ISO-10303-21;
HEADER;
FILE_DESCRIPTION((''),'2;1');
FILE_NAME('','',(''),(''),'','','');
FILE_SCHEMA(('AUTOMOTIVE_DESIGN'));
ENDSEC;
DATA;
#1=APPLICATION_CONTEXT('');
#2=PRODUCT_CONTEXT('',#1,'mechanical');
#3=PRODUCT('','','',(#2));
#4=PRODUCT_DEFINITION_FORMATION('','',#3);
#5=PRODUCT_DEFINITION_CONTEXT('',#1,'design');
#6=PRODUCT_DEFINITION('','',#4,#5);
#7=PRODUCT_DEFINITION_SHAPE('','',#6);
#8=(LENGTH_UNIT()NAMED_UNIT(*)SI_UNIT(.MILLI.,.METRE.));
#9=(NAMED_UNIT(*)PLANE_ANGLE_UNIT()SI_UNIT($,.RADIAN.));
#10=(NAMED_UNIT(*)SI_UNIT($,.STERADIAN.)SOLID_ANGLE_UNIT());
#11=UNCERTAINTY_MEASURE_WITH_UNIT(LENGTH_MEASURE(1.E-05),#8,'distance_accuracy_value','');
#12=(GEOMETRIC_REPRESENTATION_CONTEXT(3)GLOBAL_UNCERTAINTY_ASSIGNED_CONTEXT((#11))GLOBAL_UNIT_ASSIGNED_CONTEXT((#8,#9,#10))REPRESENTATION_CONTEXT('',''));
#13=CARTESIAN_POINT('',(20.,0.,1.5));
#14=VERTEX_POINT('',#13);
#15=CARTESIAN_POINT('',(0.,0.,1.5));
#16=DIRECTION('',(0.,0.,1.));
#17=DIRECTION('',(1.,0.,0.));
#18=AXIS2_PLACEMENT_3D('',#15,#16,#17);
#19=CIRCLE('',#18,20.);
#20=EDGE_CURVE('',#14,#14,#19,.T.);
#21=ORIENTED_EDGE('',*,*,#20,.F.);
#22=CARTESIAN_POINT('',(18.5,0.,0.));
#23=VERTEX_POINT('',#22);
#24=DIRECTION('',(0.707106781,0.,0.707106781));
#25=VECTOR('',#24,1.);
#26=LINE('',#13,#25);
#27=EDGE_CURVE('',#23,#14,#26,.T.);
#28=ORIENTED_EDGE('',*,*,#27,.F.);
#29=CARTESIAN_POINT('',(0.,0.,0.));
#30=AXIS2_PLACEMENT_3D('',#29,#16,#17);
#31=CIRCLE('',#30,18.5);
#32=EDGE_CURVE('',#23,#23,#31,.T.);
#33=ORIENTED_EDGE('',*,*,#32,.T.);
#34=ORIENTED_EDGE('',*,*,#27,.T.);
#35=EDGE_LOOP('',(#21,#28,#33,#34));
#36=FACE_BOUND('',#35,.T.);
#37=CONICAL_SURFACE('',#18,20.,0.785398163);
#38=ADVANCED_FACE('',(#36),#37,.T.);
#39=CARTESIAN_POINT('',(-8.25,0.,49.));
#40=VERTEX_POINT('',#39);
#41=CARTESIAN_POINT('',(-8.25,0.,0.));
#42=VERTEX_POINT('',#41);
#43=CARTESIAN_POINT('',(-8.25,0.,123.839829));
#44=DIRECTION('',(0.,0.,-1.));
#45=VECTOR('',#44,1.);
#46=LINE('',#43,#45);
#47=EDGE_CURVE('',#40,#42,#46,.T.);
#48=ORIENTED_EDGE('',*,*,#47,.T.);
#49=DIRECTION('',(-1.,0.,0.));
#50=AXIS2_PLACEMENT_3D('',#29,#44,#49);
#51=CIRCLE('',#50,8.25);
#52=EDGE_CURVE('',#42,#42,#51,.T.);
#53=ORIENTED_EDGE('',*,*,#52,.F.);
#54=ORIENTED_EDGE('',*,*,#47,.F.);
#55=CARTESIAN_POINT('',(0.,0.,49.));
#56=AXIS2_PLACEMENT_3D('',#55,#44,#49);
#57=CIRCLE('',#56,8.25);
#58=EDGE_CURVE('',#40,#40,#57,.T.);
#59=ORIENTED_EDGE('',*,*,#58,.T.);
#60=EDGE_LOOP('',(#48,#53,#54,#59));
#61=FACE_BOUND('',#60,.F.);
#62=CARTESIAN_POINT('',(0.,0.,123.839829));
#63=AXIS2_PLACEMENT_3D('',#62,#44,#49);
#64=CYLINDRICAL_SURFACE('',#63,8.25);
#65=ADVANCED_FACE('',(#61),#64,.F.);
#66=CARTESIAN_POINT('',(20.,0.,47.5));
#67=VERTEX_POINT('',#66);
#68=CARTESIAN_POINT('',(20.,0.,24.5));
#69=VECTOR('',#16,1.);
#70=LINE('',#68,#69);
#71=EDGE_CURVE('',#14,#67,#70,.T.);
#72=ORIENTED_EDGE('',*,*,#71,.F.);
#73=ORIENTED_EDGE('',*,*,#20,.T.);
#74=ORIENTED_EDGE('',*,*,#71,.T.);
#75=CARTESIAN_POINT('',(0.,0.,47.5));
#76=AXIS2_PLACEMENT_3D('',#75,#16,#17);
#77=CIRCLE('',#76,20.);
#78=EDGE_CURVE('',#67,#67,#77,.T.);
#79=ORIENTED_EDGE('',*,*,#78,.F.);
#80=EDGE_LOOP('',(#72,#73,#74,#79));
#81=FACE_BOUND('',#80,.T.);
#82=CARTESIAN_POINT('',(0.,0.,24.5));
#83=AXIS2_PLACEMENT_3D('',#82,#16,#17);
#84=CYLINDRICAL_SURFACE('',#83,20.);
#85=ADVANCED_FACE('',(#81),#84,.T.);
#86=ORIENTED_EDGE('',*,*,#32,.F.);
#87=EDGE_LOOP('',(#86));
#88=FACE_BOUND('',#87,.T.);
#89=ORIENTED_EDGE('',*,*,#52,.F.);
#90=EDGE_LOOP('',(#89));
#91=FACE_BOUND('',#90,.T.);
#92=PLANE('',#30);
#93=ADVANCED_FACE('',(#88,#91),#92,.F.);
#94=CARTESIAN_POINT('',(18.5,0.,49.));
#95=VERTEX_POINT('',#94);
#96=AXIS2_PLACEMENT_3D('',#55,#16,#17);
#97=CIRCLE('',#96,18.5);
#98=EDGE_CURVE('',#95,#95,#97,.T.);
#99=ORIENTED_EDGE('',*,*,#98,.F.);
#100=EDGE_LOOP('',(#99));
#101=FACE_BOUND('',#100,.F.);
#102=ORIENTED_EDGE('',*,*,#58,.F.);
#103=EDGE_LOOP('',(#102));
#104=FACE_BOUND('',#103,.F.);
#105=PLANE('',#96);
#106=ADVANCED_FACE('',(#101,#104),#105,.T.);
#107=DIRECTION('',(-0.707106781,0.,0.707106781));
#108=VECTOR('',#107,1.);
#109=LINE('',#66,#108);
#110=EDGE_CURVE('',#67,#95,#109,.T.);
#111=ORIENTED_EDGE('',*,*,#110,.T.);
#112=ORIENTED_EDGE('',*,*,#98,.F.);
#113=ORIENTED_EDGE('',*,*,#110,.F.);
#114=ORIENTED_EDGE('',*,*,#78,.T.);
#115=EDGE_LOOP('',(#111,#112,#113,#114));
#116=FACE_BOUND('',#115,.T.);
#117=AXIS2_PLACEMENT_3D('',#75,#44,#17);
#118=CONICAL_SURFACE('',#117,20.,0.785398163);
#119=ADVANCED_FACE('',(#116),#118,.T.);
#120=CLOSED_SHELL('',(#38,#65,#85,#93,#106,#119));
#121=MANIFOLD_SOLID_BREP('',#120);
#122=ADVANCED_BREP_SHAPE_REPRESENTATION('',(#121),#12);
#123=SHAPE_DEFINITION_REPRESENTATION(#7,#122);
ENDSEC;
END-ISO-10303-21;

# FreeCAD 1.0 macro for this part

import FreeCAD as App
import Part
import Sketcher

V = App.Vector


def edges_at(feature, points):
    """Names of the edges that pass closest to the given points."""
    edges = feature.Shape.Edges
    near = lambda p: min(range(len(edges)), key=lambda i: edges[i].distToShape(Part.Vertex(*p))[0])
    return sorted({f"Edge{near(p) + 1}" for p in points})

doc = App.newDocument("Part")
body = doc.addObject("PartDesign::Body", "Body")

# Sketch on XZ plane
sketch1 = body.newObject("Sketcher::SketchObject", "Sketch")
sketch1.AttachmentSupport = (doc.getObject("XZ_Plane"), [""])
sketch1.MapMode = "FlatFace"
sketch1.addGeometry([
    Part.LineSegment(V(0, 49, 0), V(0, 0, 0)),
    Part.LineSegment(V(0, 0, 0), V(20, 0, 0)),
    Part.LineSegment(V(20, 0, 0), V(20, 49, 0)),
    Part.LineSegment(V(20, 49, 0), V(0, 49, 0)),
], False)
sketch1.addConstraint([
    Sketcher.Constraint("Coincident", 0, 2, 1, 1),
    Sketcher.Constraint("Coincident", 1, 2, 2, 1),
    Sketcher.Constraint("Coincident", 2, 2, 3, 1),
    Sketcher.Constraint("Coincident", 3, 2, 0, 1),
    Sketcher.Constraint("Vertical", 0),
    Sketcher.Constraint("Horizontal", 1),
    Sketcher.Constraint("Vertical", 2),
    Sketcher.Constraint("Horizontal", 3),
    Sketcher.Constraint("Coincident", 0, 2, -1, 1),
    Sketcher.Constraint("DistanceX", 1, 1, 1, 2, 20.0),
    Sketcher.Constraint("DistanceY", 0, 2, 0, 1, 49.0),
])
revolution = body.newObject("PartDesign::Revolution", "Revolution")
revolution.Profile = sketch1
revolution.ReferenceAxis = (sketch1, ["V_Axis"])
revolution.Angle = 360

# Sketch on XY plane
sketch2 = body.newObject("Sketcher::SketchObject", "Sketch001")
sketch2.AttachmentSupport = (doc.getObject("XY_Plane"), [""])
sketch2.MapMode = "FlatFace"
sketch2.AttachmentOffset = App.Placement(V(0, 0, 49), App.Rotation())
sketch2.addGeometry(Part.Circle(V(0, 0, 0), V(0, 0, 1), 8), False)
sketch2.addConstraint([
    Sketcher.Constraint("Coincident", 0, 3, -1, 1),
    Sketcher.Constraint("Diameter", 0, 16.5),
])
doc.recompute()
hole = body.newObject("PartDesign::Hole", "Hole")
hole.Profile = sketch2
hole.ThreadType = "None"
hole.Diameter = 16.5
hole.DepthType = "ThroughAll"
doc.recompute()

chamfer = body.newObject("PartDesign::Chamfer", "Chamfer")
chamfer.Base = (hole, edges_at(hole, [(-20, 0, 49), (-20, 0, 0)]))
chamfer.Size = 1.5

doc.recompute()
